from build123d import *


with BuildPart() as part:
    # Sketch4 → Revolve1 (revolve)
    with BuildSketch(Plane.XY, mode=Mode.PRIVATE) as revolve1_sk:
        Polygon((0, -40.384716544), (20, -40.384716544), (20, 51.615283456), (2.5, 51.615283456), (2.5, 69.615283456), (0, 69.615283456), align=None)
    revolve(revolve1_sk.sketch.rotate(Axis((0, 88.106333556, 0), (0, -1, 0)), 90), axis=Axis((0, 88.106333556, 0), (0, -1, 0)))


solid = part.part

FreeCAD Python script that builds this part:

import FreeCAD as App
import Part
import Sketcher
from FreeCAD import Vector

doc = App.newDocument("Part")
params = doc.addObject("Spreadsheet::Sheet", "Params")
for row, (alias, value) in enumerate([
    ("sketch1_width", "20 mm"),
    ("sketch1_height", "92 mm"),
    ("sketch1_height2", "18 mm"),
    ("sketch1_width2", "17.5 mm"),
    ("revolution_angle", "360 deg"),
], start=1):
    params.set(f"A{row}", alias)
    params.set(f"B{row}", "=" + value)
    params.setAlias(f"B{row}", alias)

body = doc.addObject("PartDesign::Body", "Body")

# Sketch on XY plane
sketch1 = doc.addObject("Sketcher::SketchObject", "Sketch")
body.addObject(sketch1)
sketch1.AttachmentSupport = (doc.XY_Plane, [""])
sketch1.MapMode = "FlatFace"
sketch1.addGeometry(Part.LineSegment(Vector(0, -40.384717, 0), Vector(20, -40.384717, 0)), False)
sketch1.addGeometry(Part.LineSegment(Vector(20, -40.384717, 0), Vector(20, 51.615283, 0)), False)
sketch1.addGeometry(Part.LineSegment(Vector(20, 51.615283, 0), Vector(2.5, 51.615283, 0)), False)
sketch1.addGeometry(Part.LineSegment(Vector(2.5, 51.615283, 0), Vector(2.5, 69.615283, 0)), False)
sketch1.addGeometry(Part.LineSegment(Vector(2.5, 69.615283, 0), Vector(0, 69.615283, 0)), False)
sketch1.addGeometry(Part.LineSegment(Vector(0, 69.615283, 0), Vector(0, -40.384717, 0)), False)
sketch1.addConstraint(Sketcher.Constraint("Coincident", 0, 2, 1, 1))
sketch1.addConstraint(Sketcher.Constraint("Coincident", 1, 2, 2, 1))
sketch1.addConstraint(Sketcher.Constraint("Coincident", 2, 2, 3, 1))
sketch1.addConstraint(Sketcher.Constraint("Coincident", 3, 2, 4, 1))
sketch1.addConstraint(Sketcher.Constraint("Coincident", 4, 2, 5, 1))
sketch1.addConstraint(Sketcher.Constraint("Coincident", 5, 2, 0, 1))
sketch1.addConstraint(Sketcher.Constraint("Horizontal", 0))
sketch1.addConstraint(Sketcher.Constraint("Vertical", 1))
sketch1.addConstraint(Sketcher.Constraint("Horizontal", 2))
sketch1.addConstraint(Sketcher.Constraint("Vertical", 3))
sketch1.addConstraint(Sketcher.Constraint("Horizontal", 4))
sketch1.addConstraint(Sketcher.Constraint("Vertical", 5))
sketch1.addConstraint(Sketcher.Constraint("PointOnObject", 4, 2, -2))
sketch1.addConstraint(Sketcher.Constraint("DistanceX", 0, 1, 0, 2, 20.0))
sketch1.addConstraint(Sketcher.Constraint("DistanceY", 1, 1, 1, 2, 92.0))
sketch1.addConstraint(Sketcher.Constraint("DistanceY", 3, 1, 3, 2, 18.0))
sketch1.addConstraint(Sketcher.Constraint("DistanceX", 2, 2, 2, 1, 17.5))
sketch1.addConstraint(Sketcher.Constraint("DistanceY", 0, 2, -1, 1, 40.384717))
sketch1.setExpression("Constraints[13]", "Params.sketch1_width")
sketch1.setExpression("Constraints[14]", "Params.sketch1_height")
sketch1.setExpression("Constraints[15]", "Params.sketch1_height2")
sketch1.setExpression("Constraints[16]", "Params.sketch1_width2")
revolution = doc.addObject("PartDesign::Revolution", "Revolution")
body.addObject(revolution)
revolution.Profile = sketch1
revolution.ReferenceAxis = (sketch1, ["V_Axis"])
revolution.setExpression("Angle", "Params.revolution_angle")

doc.recompute()
